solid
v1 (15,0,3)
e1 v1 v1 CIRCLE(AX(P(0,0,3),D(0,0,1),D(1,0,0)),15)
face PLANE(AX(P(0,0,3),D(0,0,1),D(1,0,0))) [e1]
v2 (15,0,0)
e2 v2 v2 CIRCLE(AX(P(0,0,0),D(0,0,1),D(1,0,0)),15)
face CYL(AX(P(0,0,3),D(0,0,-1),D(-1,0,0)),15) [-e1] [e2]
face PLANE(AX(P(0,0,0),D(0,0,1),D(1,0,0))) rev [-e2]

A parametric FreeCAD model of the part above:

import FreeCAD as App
import Part
import Sketcher

V = App.Vector
Q = App.Units.Quantity

doc = App.newDocument("Part")
body = doc.addObject("PartDesign::Body", "Body")

sketch1 = body.newObject("Sketcher::SketchObject", "Sketch")
sketch1.AttachmentSupport = (doc.getObject("XY_Plane"), [""])
sketch1.MapMode = "FlatFace"
sketch1.addGeometry(Part.Circle(V(0, 0, 0), V(0, 0, 1), 15), False)
sketch1.addConstraint([
    Sketcher.Constraint("Coincident", 0, 3, -1, 1),
    Sketcher.Constraint("Diameter", 0, Q("30 mm")),
])
pad1 = body.newObject("PartDesign::Pad", "Pad")
pad1.Profile = sketch1
pad1.Length = 3

doc.recompute()
